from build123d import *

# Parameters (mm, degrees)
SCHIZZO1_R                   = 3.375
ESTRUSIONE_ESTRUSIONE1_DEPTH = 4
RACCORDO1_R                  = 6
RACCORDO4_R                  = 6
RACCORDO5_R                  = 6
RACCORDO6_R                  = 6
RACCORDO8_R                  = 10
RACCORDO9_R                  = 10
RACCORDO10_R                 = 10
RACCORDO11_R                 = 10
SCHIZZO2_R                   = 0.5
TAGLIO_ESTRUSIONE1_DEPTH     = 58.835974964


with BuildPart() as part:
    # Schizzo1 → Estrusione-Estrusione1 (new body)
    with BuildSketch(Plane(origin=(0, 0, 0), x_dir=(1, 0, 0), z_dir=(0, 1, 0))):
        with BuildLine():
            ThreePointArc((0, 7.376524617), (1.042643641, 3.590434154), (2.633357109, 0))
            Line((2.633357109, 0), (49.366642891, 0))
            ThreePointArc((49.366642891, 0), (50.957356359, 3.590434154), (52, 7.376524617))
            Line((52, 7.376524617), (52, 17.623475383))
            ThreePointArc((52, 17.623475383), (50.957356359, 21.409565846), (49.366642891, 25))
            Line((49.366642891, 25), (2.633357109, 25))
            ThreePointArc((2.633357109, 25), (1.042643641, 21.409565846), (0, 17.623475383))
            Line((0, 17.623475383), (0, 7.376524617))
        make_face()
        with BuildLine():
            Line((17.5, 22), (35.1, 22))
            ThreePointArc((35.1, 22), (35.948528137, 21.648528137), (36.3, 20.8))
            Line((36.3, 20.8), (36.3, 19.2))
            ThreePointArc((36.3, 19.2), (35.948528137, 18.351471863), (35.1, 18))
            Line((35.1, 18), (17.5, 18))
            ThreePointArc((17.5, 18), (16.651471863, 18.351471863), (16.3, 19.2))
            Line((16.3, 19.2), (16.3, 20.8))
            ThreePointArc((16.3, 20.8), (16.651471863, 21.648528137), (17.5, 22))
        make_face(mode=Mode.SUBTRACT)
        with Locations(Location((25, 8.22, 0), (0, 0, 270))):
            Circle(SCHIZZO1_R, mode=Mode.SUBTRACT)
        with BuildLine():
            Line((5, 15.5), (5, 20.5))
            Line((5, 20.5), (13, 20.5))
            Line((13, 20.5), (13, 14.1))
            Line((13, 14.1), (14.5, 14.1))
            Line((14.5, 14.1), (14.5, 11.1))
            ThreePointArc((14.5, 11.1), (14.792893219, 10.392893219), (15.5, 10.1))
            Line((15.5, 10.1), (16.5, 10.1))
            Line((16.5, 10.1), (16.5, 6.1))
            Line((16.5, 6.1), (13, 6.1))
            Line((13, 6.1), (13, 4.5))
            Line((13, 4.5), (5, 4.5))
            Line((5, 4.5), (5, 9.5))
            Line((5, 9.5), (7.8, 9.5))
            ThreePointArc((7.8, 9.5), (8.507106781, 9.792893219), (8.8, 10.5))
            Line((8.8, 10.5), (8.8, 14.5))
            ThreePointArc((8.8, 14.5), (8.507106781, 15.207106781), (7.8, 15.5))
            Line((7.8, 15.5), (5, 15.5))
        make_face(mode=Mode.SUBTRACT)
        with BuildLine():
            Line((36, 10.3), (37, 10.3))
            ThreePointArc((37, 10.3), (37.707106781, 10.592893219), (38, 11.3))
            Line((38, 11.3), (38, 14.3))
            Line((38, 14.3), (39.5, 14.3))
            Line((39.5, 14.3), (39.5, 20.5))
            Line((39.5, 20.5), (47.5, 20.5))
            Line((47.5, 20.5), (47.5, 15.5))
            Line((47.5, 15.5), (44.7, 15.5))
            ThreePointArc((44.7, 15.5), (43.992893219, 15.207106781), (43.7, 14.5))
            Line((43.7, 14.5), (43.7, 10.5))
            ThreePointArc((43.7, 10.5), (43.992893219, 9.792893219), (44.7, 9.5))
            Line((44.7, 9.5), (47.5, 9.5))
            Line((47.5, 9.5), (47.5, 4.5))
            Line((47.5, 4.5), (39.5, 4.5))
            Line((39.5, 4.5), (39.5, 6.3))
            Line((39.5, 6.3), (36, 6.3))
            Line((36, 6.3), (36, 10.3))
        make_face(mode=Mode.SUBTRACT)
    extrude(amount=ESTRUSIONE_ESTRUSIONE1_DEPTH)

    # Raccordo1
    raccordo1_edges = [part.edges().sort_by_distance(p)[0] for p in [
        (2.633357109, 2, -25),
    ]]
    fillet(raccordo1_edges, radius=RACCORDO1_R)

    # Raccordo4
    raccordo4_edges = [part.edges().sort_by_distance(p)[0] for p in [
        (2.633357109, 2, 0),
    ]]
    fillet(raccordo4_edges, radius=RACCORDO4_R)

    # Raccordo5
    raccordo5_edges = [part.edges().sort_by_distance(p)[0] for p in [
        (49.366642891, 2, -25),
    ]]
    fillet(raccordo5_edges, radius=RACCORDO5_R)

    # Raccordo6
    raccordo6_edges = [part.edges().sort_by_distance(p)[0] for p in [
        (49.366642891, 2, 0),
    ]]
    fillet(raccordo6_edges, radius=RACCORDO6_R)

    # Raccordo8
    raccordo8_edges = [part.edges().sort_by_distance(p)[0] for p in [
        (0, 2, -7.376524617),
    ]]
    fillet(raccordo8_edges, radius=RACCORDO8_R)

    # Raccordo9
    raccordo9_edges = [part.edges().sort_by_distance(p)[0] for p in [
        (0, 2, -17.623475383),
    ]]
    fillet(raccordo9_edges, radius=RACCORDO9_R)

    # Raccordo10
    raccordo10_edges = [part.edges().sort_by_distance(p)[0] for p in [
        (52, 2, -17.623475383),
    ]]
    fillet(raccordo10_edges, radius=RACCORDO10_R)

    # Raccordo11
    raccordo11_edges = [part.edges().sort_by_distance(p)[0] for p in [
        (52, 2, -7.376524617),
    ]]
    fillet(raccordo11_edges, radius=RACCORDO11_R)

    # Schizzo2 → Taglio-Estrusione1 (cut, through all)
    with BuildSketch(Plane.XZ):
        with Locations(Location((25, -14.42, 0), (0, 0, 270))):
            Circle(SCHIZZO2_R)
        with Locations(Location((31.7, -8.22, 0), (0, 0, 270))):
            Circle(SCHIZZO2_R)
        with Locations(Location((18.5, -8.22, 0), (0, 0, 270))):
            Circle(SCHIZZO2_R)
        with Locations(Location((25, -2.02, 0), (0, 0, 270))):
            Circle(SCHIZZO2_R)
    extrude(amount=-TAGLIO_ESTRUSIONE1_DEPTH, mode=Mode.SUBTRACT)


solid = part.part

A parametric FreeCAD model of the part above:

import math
import FreeCAD as App
import Part
import Sketcher

V = App.Vector


def edges_at(feature, points):
    """Names of the edges that pass closest to the given points."""
    edges = feature.Shape.Edges
    near = lambda p: min(range(len(edges)), key=lambda i: edges[i].distToShape(Part.Vertex(*p))[0])
    return sorted({f"Edge{near(p) + 1}" for p in points})

doc = App.newDocument("Part")
params = doc.addObject("Spreadsheet::Sheet", "Params")
for row, (alias, value) in enumerate([
    ("sketch1_radius", "1 mm"),
    ("sketch1_radius2", "26.5 mm"),
    ("sketch1_radius3", "1.2 mm"),
    ("sketch1_diameter", "6.75 mm"),
    ("sketch1_width", "8 mm"),
    ("pad1_length", "4 mm"),
    ("fillet_radius", "6 mm"),
    ("fillet2_radius", "6 mm"),
    ("fillet3_radius", "6 mm"),
    ("fillet4_radius", "6 mm"),
    ("fillet5_radius", "10 mm"),
    ("fillet6_radius", "10 mm"),
    ("fillet7_radius", "10 mm"),
    ("fillet8_radius", "10 mm"),
    ("sketch2_diameter", "1 mm"),
], start=1):
    params.set(f"A{row}", alias)
    params.set(f"B{row}", "=" + value)
    params.setAlias(f"B{row}", alias)

body = doc.addObject("PartDesign::Body", "Body")

# Sketch on XZ plane
sketch1 = body.newObject("Sketcher::SketchObject", "Sketch")
sketch1.AttachmentSupport = (doc.getObject("XZ_Plane"), [""])
sketch1.MapMode = "FlatFace"
sketch1.addGeometry(Part.ArcOfCircle(Part.Circle(V(26, -12.5, 0), V(0, 0, 1), 26.5), math.radians(151.86), math.radians(168.85)), False)
sketch1.addGeometry(Part.LineSegment(V(2.6, 0, 0), V(49.4, 0, 0)), False)
sketch1.addGeometry(Part.ArcOfCircle(Part.Circle(V(26, -12.5, 0), V(0, 0, 1), 26.5), math.radians(11.15), math.radians(28.14)), False)
sketch1.addGeometry(Part.LineSegment(V(52, -7.4, 0), V(52, -17.6, 0)), False)
sketch1.addGeometry(Part.ArcOfCircle(Part.Circle(V(26, -12.5, 0), V(0, 0, 1), 26.5), math.radians(-28.14), math.radians(-11.15)), False)
sketch1.addGeometry(Part.LineSegment(V(49.4, -25, 0), V(2.6, -25, 0)), False)
sketch1.addGeometry(Part.ArcOfCircle(Part.Circle(V(26, -12.5, 0), V(0, 0, 1), 26.5), math.radians(-168.85), math.radians(-151.86)), False)
sketch1.addGeometry(Part.LineSegment(V(0, -17.6, 0), V(0, -7.4, 0)), False)
sketch1.addGeometry(Part.Circle(V(25, -8.2, 0), V(0, 0, 1), 3.4), False)
sketch1.addGeometry(Part.LineSegment(V(7.8, -15.5, 0), V(5, -15.5, 0)), False)
sketch1.addGeometry(Part.LineSegment(V(5, -15.5, 0), V(5, -20.5, 0)), False)
sketch1.addGeometry(Part.LineSegment(V(5, -20.5, 0), V(13, -20.5, 0)), False)
sketch1.addGeometry(Part.LineSegment(V(13, -20.5, 0), V(13, -14.1, 0)), False)
sketch1.addGeometry(Part.LineSegment(V(13, -14.1, 0), V(14.5, -14.1, 0)), False)
sketch1.addGeometry(Part.LineSegment(V(14.5, -14.1, 0), V(14.5, -11.1, 0)), False)
sketch1.addGeometry(Part.ArcOfCircle(Part.Circle(V(15.5, -11.1, 0), V(0, 0, 1), 1), math.radians(90), math.radians(180)), False)
sketch1.addGeometry(Part.LineSegment(V(15.5, -10.1, 0), V(16.5, -10.1, 0)), False)
sketch1.addGeometry(Part.LineSegment(V(16.5, -10.1, 0), V(16.5, -6.1, 0)), False)
sketch1.addGeometry(Part.LineSegment(V(16.5, -6.1, 0), V(13, -6.1, 0)), False)
sketch1.addGeometry(Part.LineSegment(V(13, -6.1, 0), V(13, -4.5, 0)), False)
sketch1.addGeometry(Part.LineSegment(V(13, -4.5, 0), V(5, -4.5, 0)), False)
sketch1.addGeometry(Part.LineSegment(V(5, -4.5, 0), V(5, -9.5, 0)), False)
sketch1.addGeometry(Part.LineSegment(V(5, -9.5, 0), V(7.8, -9.5, 0)), False)
sketch1.addGeometry(Part.ArcOfCircle(Part.Circle(V(7.8, -10.5, 0), V(0, 0, 1), 1), math.radians(0), math.radians(90)), False)
sketch1.addGeometry(Part.LineSegment(V(8.8, -10.5, 0), V(8.8, -14.5, 0)), False)
sketch1.addGeometry(Part.ArcOfCircle(Part.Circle(V(7.8, -14.5, 0), V(0, 0, 1), 1), math.radians(-90), math.radians(0)), False)
sketch1.addGeometry(Part.LineSegment(V(36, -6.3, 0), V(36, -10.3, 0)), False)
sketch1.addGeometry(Part.LineSegment(V(36, -10.3, 0), V(37, -10.3, 0)), False)
sketch1.addGeometry(Part.ArcOfCircle(Part.Circle(V(37, -11.3, 0), V(0, 0, 1), 1), math.radians(0), math.radians(90)), False)
sketch1.addGeometry(Part.LineSegment(V(38, -11.3, 0), V(38, -14.3, 0)), False)
sketch1.addGeometry(Part.LineSegment(V(38, -14.3, 0), V(39.5, -14.3, 0)), False)
sketch1.addGeometry(Part.LineSegment(V(39.5, -14.3, 0), V(39.5, -20.5, 0)), False)
sketch1.addGeometry(Part.LineSegment(V(39.5, -20.5, 0), V(47.5, -20.5, 0)), False)
sketch1.addGeometry(Part.LineSegment(V(47.5, -20.5, 0), V(47.5, -15.5, 0)), False)
sketch1.addGeometry(Part.LineSegment(V(47.5, -15.5, 0), V(44.7, -15.5, 0)), False)
sketch1.addGeometry(Part.ArcOfCircle(Part.Circle(V(44.7, -14.5, 0), V(0, 0, 1), 1), math.radians(-180), math.radians(-90)), False)
sketch1.addGeometry(Part.LineSegment(V(43.7, -14.5, 0), V(43.7, -10.5, 0)), False)
sketch1.addGeometry(Part.ArcOfCircle(Part.Circle(V(44.7, -10.5, 0), V(0, 0, 1), 1), math.radians(90), math.radians(180)), False)
sketch1.addGeometry(Part.LineSegment(V(44.7, -9.5, 0), V(47.5, -9.5, 0)), False)
sketch1.addGeometry(Part.LineSegment(V(47.5, -9.5, 0), V(47.5, -4.5, 0)), False)
sketch1.addGeometry(Part.LineSegment(V(47.5, -4.5, 0), V(39.5, -4.5, 0)), False)
sketch1.addGeometry(Part.LineSegment(V(39.5, -4.5, 0), V(39.5, -6.3, 0)), False)
sketch1.addGeometry(Part.LineSegment(V(39.5, -6.3, 0), V(36, -6.3, 0)), False)
sketch1.addGeometry(Part.ArcOfCircle(Part.Circle(V(17.5, -20.8, 0), V(0, 0, 1), 1.2), math.radians(-180), math.radians(-90)), False)
sketch1.addGeometry(Part.LineSegment(V(17.5, -22, 0), V(35.1, -22, 0)), False)
sketch1.addGeometry(Part.ArcOfCircle(Part.Circle(V(35.1, -20.8, 0), V(0, 0, 1), 1.2), math.radians(-90), math.radians(0)), False)
sketch1.addGeometry(Part.LineSegment(V(36.3, -20.8, 0), V(36.3, -19.2, 0)), False)
sketch1.addGeometry(Part.ArcOfCircle(Part.Circle(V(35.1, -19.2, 0), V(0, 0, 1), 1.2), math.radians(0), math.radians(90)), False)
sketch1.addGeometry(Part.LineSegment(V(35.1, -18, 0), V(17.5, -18, 0)), False)
sketch1.addGeometry(Part.ArcOfCircle(Part.Circle(V(17.5, -19.2, 0), V(0, 0, 1), 1.2), math.radians(90), math.radians(180)), False)
sketch1.addGeometry(Part.LineSegment(V(16.3, -19.2, 0), V(16.3, -20.8, 0)), False)
sketch1.addConstraint(Sketcher.Constraint("Coincident", 0, 1, 1, 1))
sketch1.addConstraint(Sketcher.Constraint("Coincident", 1, 2, 2, 2))
sketch1.addConstraint(Sketcher.Constraint("Coincident", 2, 1, 3, 1))
sketch1.addConstraint(Sketcher.Constraint("Coincident", 3, 2, 4, 2))
sketch1.addConstraint(Sketcher.Constraint("Coincident", 4, 1, 5, 1))
sketch1.addConstraint(Sketcher.Constraint("Coincident", 5, 2, 6, 2))
sketch1.addConstraint(Sketcher.Constraint("Coincident", 6, 1, 7, 1))
sketch1.addConstraint(Sketcher.Constraint("Coincident", 7, 2, 0, 2))
sketch1.addConstraint(Sketcher.Constraint("Coincident", 9, 2, 10, 1))
sketch1.addConstraint(Sketcher.Constraint("Coincident", 10, 2, 11, 1))
sketch1.addConstraint(Sketcher.Constraint("Coincident", 11, 2, 12, 1))
sketch1.addConstraint(Sketcher.Constraint("Coincident", 12, 2, 13, 1))
sketch1.addConstraint(Sketcher.Constraint("Coincident", 13, 2, 14, 1))
sketch1.addConstraint(Sketcher.Constraint("Tangent", 14, 2, 15, 2))
sketch1.addConstraint(Sketcher.Constraint("Tangent", 15, 1, 16, 1))
sketch1.addConstraint(Sketcher.Constraint("Coincident", 16, 2, 17, 1))
sketch1.addConstraint(Sketcher.Constraint("Coincident", 17, 2, 18, 1))
sketch1.addConstraint(Sketcher.Constraint("Coincident", 18, 2, 19, 1))
sketch1.addConstraint(Sketcher.Constraint("Coincident", 19, 2, 20, 1))
sketch1.addConstraint(Sketcher.Constraint("Coincident", 20, 2, 21, 1))
sketch1.addConstraint(Sketcher.Constraint("Coincident", 21, 2, 22, 1))
sketch1.addConstraint(Sketcher.Constraint("Tangent", 22, 2, 23, 2))
sketch1.addConstraint(Sketcher.Constraint("Tangent", 23, 1, 24, 1))
sketch1.addConstraint(Sketcher.Constraint("Tangent", 24, 2, 25, 2))
sketch1.addConstraint(Sketcher.Constraint("Tangent", 25, 1, 9, 1))
sketch1.addConstraint(Sketcher.Constraint("Coincident", 26, 2, 27, 1))
sketch1.addConstraint(Sketcher.Constraint("Tangent", 27, 2, 28, 2))
sketch1.addConstraint(Sketcher.Constraint("Tangent", 28, 1, 29, 1))
sketch1.addConstraint(Sketcher.Constraint("Coincident", 29, 2, 30, 1))
sketch1.addConstraint(Sketcher.Constraint("Coincident", 30, 2, 31, 1))
sketch1.addConstraint(Sketcher.Constraint("Coincident", 31, 2, 32, 1))
sketch1.addConstraint(Sketcher.Constraint("Coincident", 32, 2, 33, 1))
sketch1.addConstraint(Sketcher.Constraint("Coincident", 33, 2, 34, 1))
sketch1.addConstraint(Sketcher.Constraint("Tangent", 34, 2, 35, 2))
sketch1.addConstraint(Sketcher.Constraint("Tangent", 35, 1, 36, 1))
sketch1.addConstraint(Sketcher.Constraint("Tangent", 36, 2, 37, 2))
sketch1.addConstraint(Sketcher.Constraint("Tangent", 37, 1, 38, 1))
sketch1.addConstraint(Sketcher.Constraint("Coincident", 38, 2, 39, 1))
sketch1.addConstraint(Sketcher.Constraint("Coincident", 39, 2, 40, 1))
sketch1.addConstraint(Sketcher.Constraint("Coincident", 40, 2, 41, 1))
sketch1.addConstraint(Sketcher.Constraint("Coincident", 41, 2, 42, 1))
sketch1.addConstraint(Sketcher.Constraint("Coincident", 42, 2, 26, 1))
sketch1.addConstraint(Sketcher.Constraint("Tangent", 43, 2, 44, 1))
sketch1.addConstraint(Sketcher.Constraint("Tangent", 44, 2, 45, 1))
sketch1.addConstraint(Sketcher.Constraint("Tangent", 45, 2, 46, 1))
sketch1.addConstraint(Sketcher.Constraint("Tangent", 46, 2, 47, 1))
sketch1.addConstraint(Sketcher.Constraint("Tangent", 47, 2, 48, 1))
sketch1.addConstraint(Sketcher.Constraint("Tangent", 48, 2, 49, 1))
sketch1.addConstraint(Sketcher.Constraint("Tangent", 49, 2, 50, 1))
sketch1.addConstraint(Sketcher.Constraint("Tangent", 50, 2, 43, 1))
sketch1.addConstraint(Sketcher.Constraint("Horizontal", 1))
sketch1.addConstraint(Sketcher.Constraint("Vertical", 3))
sketch1.addConstraint(Sketcher.Constraint("Horizontal", 5))
sketch1.addConstraint(Sketcher.Constraint("Vertical", 7))
sketch1.addConstraint(Sketcher.Constraint("Horizontal", 9))
sketch1.addConstraint(Sketcher.Constraint("Vertical", 10))
sketch1.addConstraint(Sketcher.Constraint("Horizontal", 11))
sketch1.addConstraint(Sketcher.Constraint("Vertical", 12))
sketch1.addConstraint(Sketcher.Constraint("Horizontal", 13))
sketch1.addConstraint(Sketcher.Constraint("Vertical", 14))
sketch1.addConstraint(Sketcher.Constraint("Horizontal", 16))
sketch1.addConstraint(Sketcher.Constraint("Vertical", 17))
sketch1.addConstraint(Sketcher.Constraint("Horizontal", 18))
sketch1.addConstraint(Sketcher.Constraint("Vertical", 19))
sketch1.addConstraint(Sketcher.Constraint("Horizontal", 20))
sketch1.addConstraint(Sketcher.Constraint("Vertical", 21))
sketch1.addConstraint(Sketcher.Constraint("Horizontal", 22))
sketch1.addConstraint(Sketcher.Constraint("Vertical", 24))
sketch1.addConstraint(Sketcher.Constraint("Vertical", 26))
sketch1.addConstraint(Sketcher.Constraint("Horizontal", 27))
sketch1.addConstraint(Sketcher.Constraint("Vertical", 29))
sketch1.addConstraint(Sketcher.Constraint("Horizontal", 30))
sketch1.addConstraint(Sketcher.Constraint("Vertical", 31))
sketch1.addConstraint(Sketcher.Constraint("Horizontal", 32))
sketch1.addConstraint(Sketcher.Constraint("Vertical", 33))
sketch1.addConstraint(Sketcher.Constraint("Horizontal", 34))
sketch1.addConstraint(Sketcher.Constraint("Vertical", 36))
sketch1.addConstraint(Sketcher.Constraint("Horizontal", 38))
sketch1.addConstraint(Sketcher.Constraint("Vertical", 39))
sketch1.addConstraint(Sketcher.Constraint("Horizontal", 40))
sketch1.addConstraint(Sketcher.Constraint("Vertical", 41))
sketch1.addConstraint(Sketcher.Constraint("Horizontal", 42))
sketch1.addConstraint(Sketcher.Constraint("Horizontal", 44))
sketch1.addConstraint(Sketcher.Constraint("Vertical", 46))
sketch1.addConstraint(Sketcher.Constraint("Horizontal", 48))
sketch1.addConstraint(Sketcher.Constraint("Vertical", 50))
sketch1.addConstraint(Sketcher.Constraint("Coincident", 2, 3, 0, 3))
sketch1.addConstraint(Sketcher.Constraint("Coincident", 4, 3, 0, 3))
sketch1.addConstraint(Sketcher.Constraint("Coincident", 6, 3, 0, 3))
sketch1.addConstraint(Sketcher.Constraint("Equal", 0, 2))
sketch1.addConstraint(Sketcher.Constraint("Equal", 2, 4))
sketch1.addConstraint(Sketcher.Constraint("Equal", 4, 6))
sketch1.addConstraint(Sketcher.Constraint("Equal", 15, 23))
sketch1.addConstraint(Sketcher.Constraint("Equal", 23, 25))
sketch1.addConstraint(Sketcher.Constraint("Equal", 25, 28))
sketch1.addConstraint(Sketcher.Constraint("Equal", 28, 35))
sketch1.addConstraint(Sketcher.Constraint("Equal", 35, 37))
sketch1.addConstraint(Sketcher.Constraint("Equal", 43, 45))
sketch1.addConstraint(Sketcher.Constraint("Equal", 45, 47))
sketch1.addConstraint(Sketcher.Constraint("Equal", 47, 49))
sketch1.addConstraint(Sketcher.Constraint("PointOnObject", 0, 1, -1))
sketch1.addConstraint(Sketcher.Constraint("PointOnObject", 6, 1, -2))
sketch1.addConstraint(Sketcher.Constraint("Horizontal", 25, 3, 35, 3))
sketch1.addConstraint(Sketcher.Constraint("Horizontal", 23, 3, 37, 3))
sketch1.addConstraint(Sketcher.Constraint("Horizontal", 3, 2, 6, 1))
sketch1.addConstraint(Sketcher.Constraint("Horizontal", 11, 2, 31, 2))
sketch1.addConstraint(Sketcher.Constraint("Horizontal", 20, 2, 39, 2))
sketch1.addConstraint(Sketcher.Constraint("Vertical", 1, 2, 4, 1))
sketch1.addConstraint(Sketcher.Constraint("Vertical", 12, 2, 18, 2))
sketch1.addConstraint(Sketcher.Constraint("Vertical", 10, 2, 20, 2))
sketch1.addConstraint(Sketcher.Constraint("Vertical", 33, 2, 38, 2))
sketch1.addConstraint(Sketcher.Constraint("Vertical", 31, 2, 40, 2))
sketch1.addConstraint(Sketcher.Constraint("Equal", 16, 27))
sketch1.addConstraint(Sketcher.Constraint("Equal", 13, 30))
sketch1.addConstraint(Sketcher.Constraint("Equal", 20, 32))
sketch1.addConstraint(Sketcher.Constraint("Equal", 22, 34))
sketch1.addConstraint(Sketcher.Constraint("Equal", 10, 21))
sketch1.addConstraint(Sketcher.Constraint("Equal", 17, 24))
sketch1.addConstraint(Sketcher.Constraint("Equal", 24, 26))
sketch1.addConstraint(Sketcher.Constraint("Equal", 14, 29))
sketch1.addConstraint(Sketcher.Constraint("Equal", 19, 46))
sketch1.addConstraint(Sketcher.Constraint("Radius", 15, 1.0))
sketch1.addConstraint(Sketcher.Constraint("Radius", 0, 26.5))
sketch1.addConstraint(Sketcher.Constraint("Radius", 43, 1.2))
sketch1.addConstraint(Sketcher.Constraint("Diameter", 8, 6.75))
sketch1.addConstraint(Sketcher.Constraint("DistanceX", 11, 1, 11, 2, 8.0))
sketch1.addConstraint(Sketcher.Constraint("DistanceX", 16, 1, 16, 2, 1.0))
sketch1.addConstraint(Sketcher.Constraint("DistanceY", 10, 2, 10, 1, 5.0))
sketch1.addConstraint(Sketcher.Constraint("DistanceY", 14, 1, 14, 2, 3.0))
sketch1.addConstraint(Sketcher.Constraint("DistanceY", 17, 1, 17, 2, 4.0))
sketch1.addConstraint(Sketcher.Constraint("DistanceX", 9, 2, 9, 1, 2.8))
sketch1.addConstraint(Sketcher.Constraint("DistanceX", 13, 1, 13, 2, 1.5))
sketch1.addConstraint(Sketcher.Constraint("DistanceX", 44, 1, 44, 2, 17.6))
sketch1.addConstraint(Sketcher.Constraint("DistanceY", 12, 1, 12, 2, 6.4))
sketch1.addConstraint(Sketcher.Constraint("DistanceY", 31, 2, 31, 1, 6.2))
sketch1.addConstraint(Sketcher.Constraint("DistanceX", -1, 1, 0, 3, 26.0))
sketch1.addConstraint(Sketcher.Constraint("DistanceX", -1, 1, 8, 3, 25.0))
sketch1.addConstraint(Sketcher.Constraint("DistanceX", -1, 1, 28, 3, 37.0))
sketch1.addConstraint(Sketcher.Constraint("DistanceY", 4, 1, -1, 1, 25.0))
sketch1.addConstraint(Sketcher.Constraint("DistanceX", -1, 1, 9, 2, 5.0))
sketch1.addConstraint(Sketcher.Constraint("DistanceY", 43, 2, -1, 1, 22.0))
sketch1.addConstraint(Sketcher.Constraint("DistanceY", 15, 3, -1, 1, 11.1))
sketch1.addConstraint(Sketcher.Constraint("DistanceX", -1, 1, 43, 3, 17.5))
sketch1.addConstraint(Sketcher.Constraint("DistanceY", 8, 3, -1, 1, 8.22))
sketch1.setExpression("Constraints[121]", "Params.sketch1_radius")
sketch1.setExpression("Constraints[122]", "Params.sketch1_radius2")
sketch1.setExpression("Constraints[123]", "Params.sketch1_radius3")
sketch1.setExpression("Constraints[124]", "Params.sketch1_diameter")
sketch1.setExpression("Constraints[125]", "Params.sketch1_width")
pad1 = body.newObject("PartDesign::Pad", "Pad")
pad1.Profile = sketch1
pad1.setExpression("Length", "Params.pad1_length")
pad1.Reversed = True
doc.recompute()

fillet = body.newObject("PartDesign::Fillet", "Fillet")
fillet.Base = (pad1, edges_at(pad1, [(2.633, 2, -25)]))
fillet.setExpression("Radius", "Params.fillet_radius")
doc.recompute()

fillet2 = body.newObject("PartDesign::Fillet", "Fillet001")
fillet2.Base = (fillet, edges_at(fillet, [(2.633, 2, 0)]))
fillet2.setExpression("Radius", "Params.fillet2_radius")
doc.recompute()

fillet3 = body.newObject("PartDesign::Fillet", "Fillet002")
fillet3.Base = (fillet2, edges_at(fillet2, [(49.367, 2, -25)]))
fillet3.setExpression("Radius", "Params.fillet3_radius")
doc.recompute()

fillet4 = body.newObject("PartDesign::Fillet", "Fillet003")
fillet4.Base = (fillet3, edges_at(fillet3, [(49.367, 2, 0)]))
fillet4.setExpression("Radius", "Params.fillet4_radius")
doc.recompute()

fillet5 = body.newObject("PartDesign::Fillet", "Fillet004")
fillet5.Base = (fillet4, edges_at(fillet4, [(0, 2, -7.377)]))
fillet5.setExpression("Radius", "Params.fillet5_radius")
doc.recompute()

fillet6 = body.newObject("PartDesign::Fillet", "Fillet005")
fillet6.Base = (fillet5, edges_at(fillet5, [(0, 2, -17.623)]))
fillet6.setExpression("Radius", "Params.fillet6_radius")
doc.recompute()

fillet7 = body.newObject("PartDesign::Fillet", "Fillet006")
fillet7.Base = (fillet6, edges_at(fillet6, [(52, 2, -17.623)]))
fillet7.setExpression("Radius", "Params.fillet7_radius")
doc.recompute()

fillet8 = body.newObject("PartDesign::Fillet", "Fillet007")
fillet8.Base = (fillet7, edges_at(fillet7, [(52, 2, -7.377)]))
fillet8.setExpression("Radius", "Params.fillet8_radius")

# Sketch on XZ plane
sketch2 = body.newObject("Sketcher::SketchObject", "Sketch001")
sketch2.AttachmentSupport = (doc.getObject("XZ_Plane"), [""])
sketch2.MapMode = "FlatFace"
sketch2.addGeometry(Part.Circle(V(25, -14.4, 0), V(0, 0, 1), 0.5), False)
sketch2.addGeometry(Part.Circle(V(31.7, -8.2, 0), V(0, 0, 1), 0.5), False)
sketch2.addGeometry(Part.Circle(V(18.5, -8.2, 0), V(0, 0, 1), 0.5), False)
sketch2.addGeometry(Part.Circle(V(25, -2, 0), V(0, 0, 1), 0.5), False)
sketch2.addConstraint(Sketcher.Constraint("Equal", 0, 1))
sketch2.addConstraint(Sketcher.Constraint("Equal", 1, 2))
sketch2.addConstraint(Sketcher.Constraint("Equal", 2, 3))
sketch2.addConstraint(Sketcher.Constraint("Horizontal", 1, 3, 2, 3))
sketch2.addConstraint(Sketcher.Constraint("Vertical", 0, 3, 3, 3))
sketch2.addConstraint(Sketcher.Constraint("Diameter", 0, 1.0))
sketch2.addConstraint(Sketcher.Constraint("DistanceX", -1, 1, 0, 3, 25.0))
sketch2.addConstraint(Sketcher.Constraint("DistanceX", -1, 1, 1, 3, 31.7))
sketch2.addConstraint(Sketcher.Constraint("DistanceX", -1, 1, 2, 3, 18.5))
sketch2.addConstraint(Sketcher.Constraint("DistanceY", 0, 3, 1, 3, 6.2))
sketch2.addConstraint(Sketcher.Constraint("DistanceY", 2, 3, 3, 3, 6.2))
sketch2.addConstraint(Sketcher.Constraint("DistanceY", 0, 3, -1, 1, 14.42))
sketch2.setExpression("Constraints[5]", "Params.sketch2_diameter")
pocket1 = body.newObject("PartDesign::Pocket", "Pocket")
pocket1.Profile = sketch2
pocket1.Type = "ThroughAll"

doc.recompute()
